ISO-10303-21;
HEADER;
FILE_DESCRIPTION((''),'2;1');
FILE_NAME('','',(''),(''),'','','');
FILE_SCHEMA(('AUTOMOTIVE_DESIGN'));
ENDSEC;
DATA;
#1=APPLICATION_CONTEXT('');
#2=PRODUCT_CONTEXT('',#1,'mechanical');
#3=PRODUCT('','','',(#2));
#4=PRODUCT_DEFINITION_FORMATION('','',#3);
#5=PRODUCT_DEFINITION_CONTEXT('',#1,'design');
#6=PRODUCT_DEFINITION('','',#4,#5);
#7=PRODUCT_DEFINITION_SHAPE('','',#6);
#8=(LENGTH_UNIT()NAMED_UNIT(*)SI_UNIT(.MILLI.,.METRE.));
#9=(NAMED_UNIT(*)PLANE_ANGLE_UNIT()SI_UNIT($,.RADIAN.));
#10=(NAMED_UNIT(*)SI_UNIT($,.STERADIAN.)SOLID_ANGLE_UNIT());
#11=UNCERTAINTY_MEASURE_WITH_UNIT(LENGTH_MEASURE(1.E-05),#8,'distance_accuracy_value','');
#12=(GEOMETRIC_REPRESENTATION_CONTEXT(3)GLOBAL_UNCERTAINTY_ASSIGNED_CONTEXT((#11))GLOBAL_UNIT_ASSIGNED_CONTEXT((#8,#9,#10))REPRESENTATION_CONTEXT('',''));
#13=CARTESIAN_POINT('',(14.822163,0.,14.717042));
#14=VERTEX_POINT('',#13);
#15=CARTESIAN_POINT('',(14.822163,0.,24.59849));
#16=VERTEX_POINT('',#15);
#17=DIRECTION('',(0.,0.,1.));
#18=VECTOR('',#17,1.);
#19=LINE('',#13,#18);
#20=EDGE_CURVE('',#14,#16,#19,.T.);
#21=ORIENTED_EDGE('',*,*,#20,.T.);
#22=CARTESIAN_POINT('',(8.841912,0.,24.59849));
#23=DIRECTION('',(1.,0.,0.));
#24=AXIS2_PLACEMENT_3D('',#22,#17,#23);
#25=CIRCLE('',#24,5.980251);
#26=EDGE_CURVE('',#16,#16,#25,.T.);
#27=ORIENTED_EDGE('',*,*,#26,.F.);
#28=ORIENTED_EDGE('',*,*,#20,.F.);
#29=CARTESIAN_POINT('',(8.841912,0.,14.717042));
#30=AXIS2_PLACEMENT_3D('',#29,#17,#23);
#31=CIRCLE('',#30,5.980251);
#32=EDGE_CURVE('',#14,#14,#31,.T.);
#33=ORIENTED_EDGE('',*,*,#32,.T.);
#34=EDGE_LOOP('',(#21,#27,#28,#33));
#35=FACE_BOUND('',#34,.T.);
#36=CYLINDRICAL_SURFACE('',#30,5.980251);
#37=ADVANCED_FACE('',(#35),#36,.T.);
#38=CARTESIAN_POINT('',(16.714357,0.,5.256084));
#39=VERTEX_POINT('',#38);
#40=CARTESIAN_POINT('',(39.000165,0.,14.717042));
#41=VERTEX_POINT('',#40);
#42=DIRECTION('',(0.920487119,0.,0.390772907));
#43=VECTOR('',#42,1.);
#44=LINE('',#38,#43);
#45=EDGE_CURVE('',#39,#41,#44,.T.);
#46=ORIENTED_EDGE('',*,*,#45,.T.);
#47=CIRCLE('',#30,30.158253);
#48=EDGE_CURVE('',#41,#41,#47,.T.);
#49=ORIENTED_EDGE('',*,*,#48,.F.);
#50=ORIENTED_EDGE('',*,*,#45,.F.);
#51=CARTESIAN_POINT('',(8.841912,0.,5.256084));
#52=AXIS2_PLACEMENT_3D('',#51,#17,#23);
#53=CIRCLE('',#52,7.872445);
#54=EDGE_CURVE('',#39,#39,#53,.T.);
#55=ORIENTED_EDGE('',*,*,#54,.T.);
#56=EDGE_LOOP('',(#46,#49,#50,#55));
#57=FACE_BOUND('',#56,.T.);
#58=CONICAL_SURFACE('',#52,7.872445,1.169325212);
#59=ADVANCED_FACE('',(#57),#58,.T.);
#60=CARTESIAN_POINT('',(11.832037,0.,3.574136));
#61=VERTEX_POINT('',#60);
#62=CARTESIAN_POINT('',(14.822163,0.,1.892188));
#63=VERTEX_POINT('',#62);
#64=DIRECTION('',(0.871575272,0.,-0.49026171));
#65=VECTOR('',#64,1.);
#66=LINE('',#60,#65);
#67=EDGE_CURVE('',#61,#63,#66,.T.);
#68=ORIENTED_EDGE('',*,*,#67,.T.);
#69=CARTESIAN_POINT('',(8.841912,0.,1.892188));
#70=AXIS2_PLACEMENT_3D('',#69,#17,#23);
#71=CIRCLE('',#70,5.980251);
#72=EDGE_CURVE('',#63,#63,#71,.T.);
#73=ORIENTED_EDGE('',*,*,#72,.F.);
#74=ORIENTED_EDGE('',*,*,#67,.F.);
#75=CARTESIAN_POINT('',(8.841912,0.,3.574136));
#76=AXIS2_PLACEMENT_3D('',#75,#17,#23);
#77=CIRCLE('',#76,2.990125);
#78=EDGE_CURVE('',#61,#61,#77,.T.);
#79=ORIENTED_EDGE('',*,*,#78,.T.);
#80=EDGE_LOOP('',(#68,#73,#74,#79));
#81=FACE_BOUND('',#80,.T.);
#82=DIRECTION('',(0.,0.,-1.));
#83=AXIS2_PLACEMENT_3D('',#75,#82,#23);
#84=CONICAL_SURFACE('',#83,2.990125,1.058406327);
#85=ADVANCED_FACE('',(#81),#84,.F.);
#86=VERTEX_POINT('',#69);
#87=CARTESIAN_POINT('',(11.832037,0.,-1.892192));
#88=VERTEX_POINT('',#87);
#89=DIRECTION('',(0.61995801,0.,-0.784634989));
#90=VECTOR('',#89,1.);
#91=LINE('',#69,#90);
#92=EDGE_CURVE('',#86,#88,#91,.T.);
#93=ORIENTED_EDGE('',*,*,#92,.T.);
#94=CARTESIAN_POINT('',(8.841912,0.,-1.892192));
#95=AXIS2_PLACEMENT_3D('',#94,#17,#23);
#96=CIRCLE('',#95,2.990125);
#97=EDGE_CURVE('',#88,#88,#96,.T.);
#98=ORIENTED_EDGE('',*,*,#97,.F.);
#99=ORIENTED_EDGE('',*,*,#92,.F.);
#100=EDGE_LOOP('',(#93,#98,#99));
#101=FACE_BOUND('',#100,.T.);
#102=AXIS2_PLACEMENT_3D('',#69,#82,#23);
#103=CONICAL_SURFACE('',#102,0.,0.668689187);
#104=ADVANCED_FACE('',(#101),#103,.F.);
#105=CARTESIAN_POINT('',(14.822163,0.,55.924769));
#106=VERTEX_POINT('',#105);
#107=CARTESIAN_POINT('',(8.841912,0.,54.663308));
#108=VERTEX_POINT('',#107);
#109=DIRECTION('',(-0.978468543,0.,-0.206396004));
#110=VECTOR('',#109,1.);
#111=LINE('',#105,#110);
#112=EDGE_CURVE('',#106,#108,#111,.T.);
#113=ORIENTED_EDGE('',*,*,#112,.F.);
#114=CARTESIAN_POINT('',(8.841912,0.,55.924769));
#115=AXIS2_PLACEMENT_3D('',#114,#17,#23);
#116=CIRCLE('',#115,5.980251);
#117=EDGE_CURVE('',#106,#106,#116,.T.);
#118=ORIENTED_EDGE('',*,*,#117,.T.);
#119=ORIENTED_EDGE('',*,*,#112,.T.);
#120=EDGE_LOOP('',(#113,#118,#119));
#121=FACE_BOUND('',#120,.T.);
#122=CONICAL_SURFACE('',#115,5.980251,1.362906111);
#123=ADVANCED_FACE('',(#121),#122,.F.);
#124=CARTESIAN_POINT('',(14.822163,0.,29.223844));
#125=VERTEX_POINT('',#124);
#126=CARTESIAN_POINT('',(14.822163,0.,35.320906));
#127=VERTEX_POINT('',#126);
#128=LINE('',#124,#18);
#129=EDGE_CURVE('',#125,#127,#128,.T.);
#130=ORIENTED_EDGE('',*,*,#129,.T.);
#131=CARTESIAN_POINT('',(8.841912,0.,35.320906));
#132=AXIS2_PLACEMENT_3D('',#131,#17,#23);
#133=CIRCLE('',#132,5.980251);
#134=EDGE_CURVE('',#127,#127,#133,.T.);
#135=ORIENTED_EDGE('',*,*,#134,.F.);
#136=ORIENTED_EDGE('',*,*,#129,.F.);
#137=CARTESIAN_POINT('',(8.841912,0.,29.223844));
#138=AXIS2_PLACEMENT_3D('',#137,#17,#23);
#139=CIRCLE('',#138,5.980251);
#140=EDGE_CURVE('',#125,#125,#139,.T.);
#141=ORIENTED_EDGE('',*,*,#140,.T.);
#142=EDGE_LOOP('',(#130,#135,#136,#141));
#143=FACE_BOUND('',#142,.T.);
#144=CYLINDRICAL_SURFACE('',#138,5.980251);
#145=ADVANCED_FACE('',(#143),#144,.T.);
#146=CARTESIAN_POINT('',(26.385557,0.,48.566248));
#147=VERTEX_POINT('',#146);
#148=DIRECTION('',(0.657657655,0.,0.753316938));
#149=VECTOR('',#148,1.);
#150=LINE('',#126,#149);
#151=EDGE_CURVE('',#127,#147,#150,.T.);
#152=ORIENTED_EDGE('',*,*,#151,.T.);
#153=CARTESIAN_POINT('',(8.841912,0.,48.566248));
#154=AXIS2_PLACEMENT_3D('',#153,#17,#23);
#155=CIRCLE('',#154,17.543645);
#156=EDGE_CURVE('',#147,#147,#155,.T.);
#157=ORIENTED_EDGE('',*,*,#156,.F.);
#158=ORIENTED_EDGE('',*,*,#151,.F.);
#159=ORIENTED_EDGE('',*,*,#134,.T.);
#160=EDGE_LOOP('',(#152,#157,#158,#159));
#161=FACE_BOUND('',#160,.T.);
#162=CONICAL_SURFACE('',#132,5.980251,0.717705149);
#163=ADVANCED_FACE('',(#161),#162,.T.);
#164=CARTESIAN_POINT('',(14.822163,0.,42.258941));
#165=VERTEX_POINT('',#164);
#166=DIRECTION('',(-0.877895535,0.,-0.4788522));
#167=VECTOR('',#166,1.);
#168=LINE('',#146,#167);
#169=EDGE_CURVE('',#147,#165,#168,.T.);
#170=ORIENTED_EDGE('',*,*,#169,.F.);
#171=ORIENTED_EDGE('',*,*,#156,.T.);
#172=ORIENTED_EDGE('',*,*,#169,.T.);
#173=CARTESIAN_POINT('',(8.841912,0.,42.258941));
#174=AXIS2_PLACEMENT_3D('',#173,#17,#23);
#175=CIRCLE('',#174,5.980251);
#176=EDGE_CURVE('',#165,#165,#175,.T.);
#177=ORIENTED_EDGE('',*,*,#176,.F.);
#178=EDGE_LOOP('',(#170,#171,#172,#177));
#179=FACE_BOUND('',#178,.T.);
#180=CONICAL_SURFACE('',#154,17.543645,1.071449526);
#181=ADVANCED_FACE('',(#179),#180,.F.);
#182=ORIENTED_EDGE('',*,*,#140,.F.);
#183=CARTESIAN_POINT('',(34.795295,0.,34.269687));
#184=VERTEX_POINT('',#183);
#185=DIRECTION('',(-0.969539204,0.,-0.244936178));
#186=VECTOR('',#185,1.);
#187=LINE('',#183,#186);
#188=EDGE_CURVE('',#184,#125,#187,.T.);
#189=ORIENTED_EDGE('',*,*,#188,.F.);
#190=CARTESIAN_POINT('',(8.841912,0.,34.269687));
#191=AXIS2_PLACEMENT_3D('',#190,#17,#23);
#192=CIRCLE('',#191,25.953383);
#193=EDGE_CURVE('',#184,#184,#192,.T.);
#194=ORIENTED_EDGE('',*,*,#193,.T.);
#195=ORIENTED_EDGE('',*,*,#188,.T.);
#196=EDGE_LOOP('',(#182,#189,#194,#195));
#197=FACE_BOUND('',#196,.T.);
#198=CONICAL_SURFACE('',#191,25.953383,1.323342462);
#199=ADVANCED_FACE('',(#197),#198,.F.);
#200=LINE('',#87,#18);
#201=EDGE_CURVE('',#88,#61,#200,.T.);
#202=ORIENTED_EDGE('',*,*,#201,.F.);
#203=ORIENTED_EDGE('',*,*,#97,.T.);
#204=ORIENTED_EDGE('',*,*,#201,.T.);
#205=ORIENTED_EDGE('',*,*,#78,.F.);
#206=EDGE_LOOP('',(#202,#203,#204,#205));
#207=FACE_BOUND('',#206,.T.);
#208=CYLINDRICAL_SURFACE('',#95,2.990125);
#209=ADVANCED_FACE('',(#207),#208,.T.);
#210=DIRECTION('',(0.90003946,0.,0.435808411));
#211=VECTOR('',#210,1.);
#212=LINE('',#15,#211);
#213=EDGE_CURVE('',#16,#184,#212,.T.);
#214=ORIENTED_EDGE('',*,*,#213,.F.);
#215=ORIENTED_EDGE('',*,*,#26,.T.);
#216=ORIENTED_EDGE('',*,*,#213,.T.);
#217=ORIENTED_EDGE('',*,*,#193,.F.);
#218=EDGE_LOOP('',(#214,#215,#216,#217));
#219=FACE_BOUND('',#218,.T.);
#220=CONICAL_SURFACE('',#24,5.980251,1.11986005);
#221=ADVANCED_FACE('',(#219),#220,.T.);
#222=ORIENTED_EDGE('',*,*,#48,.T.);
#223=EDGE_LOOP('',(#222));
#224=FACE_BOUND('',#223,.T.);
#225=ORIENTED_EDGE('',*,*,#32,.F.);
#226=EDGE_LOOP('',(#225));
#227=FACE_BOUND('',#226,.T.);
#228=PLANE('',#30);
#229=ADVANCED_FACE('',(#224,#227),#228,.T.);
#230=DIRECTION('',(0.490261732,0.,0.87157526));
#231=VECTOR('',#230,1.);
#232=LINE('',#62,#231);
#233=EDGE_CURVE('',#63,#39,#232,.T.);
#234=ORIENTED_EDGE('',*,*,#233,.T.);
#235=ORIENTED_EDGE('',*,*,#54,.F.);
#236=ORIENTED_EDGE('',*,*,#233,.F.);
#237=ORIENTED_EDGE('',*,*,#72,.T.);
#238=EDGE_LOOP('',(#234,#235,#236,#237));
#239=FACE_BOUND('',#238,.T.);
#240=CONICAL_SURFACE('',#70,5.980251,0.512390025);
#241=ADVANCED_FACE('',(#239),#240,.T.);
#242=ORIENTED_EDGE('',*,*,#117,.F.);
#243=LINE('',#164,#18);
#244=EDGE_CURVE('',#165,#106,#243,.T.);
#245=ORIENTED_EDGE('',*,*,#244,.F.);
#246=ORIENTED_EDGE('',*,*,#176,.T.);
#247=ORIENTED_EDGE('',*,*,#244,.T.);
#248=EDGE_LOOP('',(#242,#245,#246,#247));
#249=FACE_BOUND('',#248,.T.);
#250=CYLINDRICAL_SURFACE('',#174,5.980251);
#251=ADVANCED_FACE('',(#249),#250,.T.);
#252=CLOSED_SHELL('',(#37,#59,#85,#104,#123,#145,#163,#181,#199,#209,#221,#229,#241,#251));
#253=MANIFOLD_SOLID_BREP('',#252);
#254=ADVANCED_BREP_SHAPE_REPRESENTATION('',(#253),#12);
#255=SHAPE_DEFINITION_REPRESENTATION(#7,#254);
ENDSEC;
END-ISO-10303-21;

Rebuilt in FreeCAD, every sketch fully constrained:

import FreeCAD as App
import Part
import Sketcher

V = App.Vector
Q = App.Units.Quantity

doc = App.newDocument("Part")
body = doc.addObject("PartDesign::Body", "Body")

# Sketch on XZ plane
sketch1 = doc.addObject("Sketcher::SketchObject", "Sketch")
body.addObject(sketch1)
sketch1.AttachmentSupport = (doc.XZ_Plane, [""])
sketch1.MapMode = "FlatFace"
sketch1.addGeometry([
    Part.LineSegment(V(11.8, -1.9, 0), V(11.8, 3.6, 0)),  # 0
    Part.LineSegment(V(11.8, 3.6, 0), V(14.8, 1.9, 0)),  # 1
    Part.LineSegment(V(14.8, 1.9, 0), V(16.7, 5.3, 0)),  # 2
    Part.LineSegment(V(16.7, 5.3, 0), V(39, 14.7, 0)),  # 3
    Part.LineSegment(V(39, 14.7, 0), V(14.8, 14.7, 0)),  # 4
    Part.LineSegment(V(14.8, 14.7, 0), V(14.8, 24.6, 0)),  # 5
    Part.LineSegment(V(14.8, 24.6, 0), V(34.8, 34.3, 0)),  # 6
    Part.LineSegment(V(34.8, 34.3, 0), V(14.8, 29.2, 0)),  # 7
    Part.LineSegment(V(14.8, 29.2, 0), V(14.8, 35.3, 0)),  # 8
    Part.LineSegment(V(14.8, 35.3, 0), V(26.4, 48.6, 0)),  # 9
    Part.LineSegment(V(26.4, 48.6, 0), V(14.8, 42.3, 0)),  # 10
    Part.LineSegment(V(14.8, 42.3, 0), V(14.8, 55.9, 0)),  # 11
    Part.LineSegment(V(14.8, 55.9, 0), V(8.8, 54.7, 0)),  # 12
    Part.LineSegment(V(8.8, 54.7, 0), V(8.8, 1.9, 0)),  # 13
    Part.LineSegment(V(8.8, 1.9, 0), V(11.8, -1.9, 0)),  # 14
], False)
sketch1.addGeometry(Part.LineSegment(V(8.8, -1.9, 0), V(8.8, 55.9, 0)), True)  # axis
sketch1.addConstraint([
    Sketcher.Constraint("Coincident", 0, 2, 1, 1),
    Sketcher.Constraint("Coincident", 1, 2, 2, 1),
    Sketcher.Constraint("Coincident", 2, 2, 3, 1),
    Sketcher.Constraint("Coincident", 3, 2, 4, 1),
    Sketcher.Constraint("Coincident", 4, 2, 5, 1),
    Sketcher.Constraint("Coincident", 5, 2, 6, 1),
    Sketcher.Constraint("Coincident", 6, 2, 7, 1),
    Sketcher.Constraint("Coincident", 7, 2, 8, 1),
    Sketcher.Constraint("Coincident", 8, 2, 9, 1),
    Sketcher.Constraint("Coincident", 9, 2, 10, 1),
    Sketcher.Constraint("Coincident", 10, 2, 11, 1),
    Sketcher.Constraint("Coincident", 11, 2, 12, 1),
    Sketcher.Constraint("Coincident", 12, 2, 13, 1),
    Sketcher.Constraint("Coincident", 13, 2, 14, 1),
    Sketcher.Constraint("Coincident", 14, 2, 0, 1),
    Sketcher.Constraint("Vertical", 0),
    Sketcher.Constraint("Horizontal", 4),
    Sketcher.Constraint("Vertical", 5),
    Sketcher.Constraint("Vertical", 8),
    Sketcher.Constraint("Vertical", 11),
    Sketcher.Constraint("Vertical", 13),
    Sketcher.Constraint("Vertical", 15),
    Sketcher.Constraint("Symmetric", 13, 2, 15, 1, -1),
    Sketcher.Constraint("Perpendicular", 1, 2),
    Sketcher.Constraint("Horizontal", 1, 2, 13, 2),
    Sketcher.Constraint("Horizontal", 14, 2, 15, 1),
    Sketcher.Constraint("Horizontal", 11, 2, 15, 2),
    Sketcher.Constraint("Vertical", 1, 2, 4, 2),
    Sketcher.Constraint("Vertical", 5, 2, 7, 2),
    Sketcher.Constraint("Vertical", 8, 2, 10, 2),
    Sketcher.Constraint("DistanceY", 0, 1, 0, 2, Q("5.466328 mm")),
    Sketcher.Constraint("DistanceY", 5, 1, 5, 2, Q("9.881448 mm")),
    Sketcher.Constraint("DistanceY", 13, 2, 13, 1, Q("52.77112 mm")),
    Sketcher.Constraint("DistanceY", 15, 1, 15, 2, Q("57.816961 mm")),
    Sketcher.Constraint("DistanceY", 1, 2, 6, 2, Q("32.377499 mm")),
    Sketcher.Constraint("DistanceY", 8, 2, 12, 2, Q("19.342402 mm")),
    Sketcher.Constraint("Distance", 2, Q("3.859559 mm")),
    Sketcher.Constraint("Distance", 10, Q("13.17172 mm")),
    Sketcher.Constraint("Distance", 14, Q("4.823109 mm")),
    Sketcher.Constraint("DistanceX", 4, 2, 4, 1, Q("24.178002 mm")),
    Sketcher.Constraint("DistanceY", 8, 1, 8, 2, Q("6.097062 mm")),
    Sketcher.Constraint("DistanceY", 11, 1, 11, 2, Q("13.665828 mm")),
    Sketcher.Constraint("DistanceY", -1, 1, 3, 2, Q("14.717042 mm")),
    Sketcher.Constraint("DistanceY", -1, 1, 9, 2, Q("48.566248 mm")),
    Sketcher.Constraint("DistanceY", -1, 1, 10, 2, Q("42.258941 mm")),
    Sketcher.Constraint("DistanceX", 0, 2, 2, 2, Q("4.88232 mm")),
    Sketcher.Constraint("DistanceX", 6, 2, 3, 2, Q("4.20487 mm")),
    Sketcher.Constraint("DistanceX", -1, 1, 0, 2, Q("11.832037 mm")),
])
revolution = doc.addObject("PartDesign::Revolution", "Revolution")
body.addObject(revolution)
revolution.Profile = sketch1
revolution.ReferenceAxis = (sketch1, ["Axis0"])
revolution.Angle = 360

doc.recompute()
